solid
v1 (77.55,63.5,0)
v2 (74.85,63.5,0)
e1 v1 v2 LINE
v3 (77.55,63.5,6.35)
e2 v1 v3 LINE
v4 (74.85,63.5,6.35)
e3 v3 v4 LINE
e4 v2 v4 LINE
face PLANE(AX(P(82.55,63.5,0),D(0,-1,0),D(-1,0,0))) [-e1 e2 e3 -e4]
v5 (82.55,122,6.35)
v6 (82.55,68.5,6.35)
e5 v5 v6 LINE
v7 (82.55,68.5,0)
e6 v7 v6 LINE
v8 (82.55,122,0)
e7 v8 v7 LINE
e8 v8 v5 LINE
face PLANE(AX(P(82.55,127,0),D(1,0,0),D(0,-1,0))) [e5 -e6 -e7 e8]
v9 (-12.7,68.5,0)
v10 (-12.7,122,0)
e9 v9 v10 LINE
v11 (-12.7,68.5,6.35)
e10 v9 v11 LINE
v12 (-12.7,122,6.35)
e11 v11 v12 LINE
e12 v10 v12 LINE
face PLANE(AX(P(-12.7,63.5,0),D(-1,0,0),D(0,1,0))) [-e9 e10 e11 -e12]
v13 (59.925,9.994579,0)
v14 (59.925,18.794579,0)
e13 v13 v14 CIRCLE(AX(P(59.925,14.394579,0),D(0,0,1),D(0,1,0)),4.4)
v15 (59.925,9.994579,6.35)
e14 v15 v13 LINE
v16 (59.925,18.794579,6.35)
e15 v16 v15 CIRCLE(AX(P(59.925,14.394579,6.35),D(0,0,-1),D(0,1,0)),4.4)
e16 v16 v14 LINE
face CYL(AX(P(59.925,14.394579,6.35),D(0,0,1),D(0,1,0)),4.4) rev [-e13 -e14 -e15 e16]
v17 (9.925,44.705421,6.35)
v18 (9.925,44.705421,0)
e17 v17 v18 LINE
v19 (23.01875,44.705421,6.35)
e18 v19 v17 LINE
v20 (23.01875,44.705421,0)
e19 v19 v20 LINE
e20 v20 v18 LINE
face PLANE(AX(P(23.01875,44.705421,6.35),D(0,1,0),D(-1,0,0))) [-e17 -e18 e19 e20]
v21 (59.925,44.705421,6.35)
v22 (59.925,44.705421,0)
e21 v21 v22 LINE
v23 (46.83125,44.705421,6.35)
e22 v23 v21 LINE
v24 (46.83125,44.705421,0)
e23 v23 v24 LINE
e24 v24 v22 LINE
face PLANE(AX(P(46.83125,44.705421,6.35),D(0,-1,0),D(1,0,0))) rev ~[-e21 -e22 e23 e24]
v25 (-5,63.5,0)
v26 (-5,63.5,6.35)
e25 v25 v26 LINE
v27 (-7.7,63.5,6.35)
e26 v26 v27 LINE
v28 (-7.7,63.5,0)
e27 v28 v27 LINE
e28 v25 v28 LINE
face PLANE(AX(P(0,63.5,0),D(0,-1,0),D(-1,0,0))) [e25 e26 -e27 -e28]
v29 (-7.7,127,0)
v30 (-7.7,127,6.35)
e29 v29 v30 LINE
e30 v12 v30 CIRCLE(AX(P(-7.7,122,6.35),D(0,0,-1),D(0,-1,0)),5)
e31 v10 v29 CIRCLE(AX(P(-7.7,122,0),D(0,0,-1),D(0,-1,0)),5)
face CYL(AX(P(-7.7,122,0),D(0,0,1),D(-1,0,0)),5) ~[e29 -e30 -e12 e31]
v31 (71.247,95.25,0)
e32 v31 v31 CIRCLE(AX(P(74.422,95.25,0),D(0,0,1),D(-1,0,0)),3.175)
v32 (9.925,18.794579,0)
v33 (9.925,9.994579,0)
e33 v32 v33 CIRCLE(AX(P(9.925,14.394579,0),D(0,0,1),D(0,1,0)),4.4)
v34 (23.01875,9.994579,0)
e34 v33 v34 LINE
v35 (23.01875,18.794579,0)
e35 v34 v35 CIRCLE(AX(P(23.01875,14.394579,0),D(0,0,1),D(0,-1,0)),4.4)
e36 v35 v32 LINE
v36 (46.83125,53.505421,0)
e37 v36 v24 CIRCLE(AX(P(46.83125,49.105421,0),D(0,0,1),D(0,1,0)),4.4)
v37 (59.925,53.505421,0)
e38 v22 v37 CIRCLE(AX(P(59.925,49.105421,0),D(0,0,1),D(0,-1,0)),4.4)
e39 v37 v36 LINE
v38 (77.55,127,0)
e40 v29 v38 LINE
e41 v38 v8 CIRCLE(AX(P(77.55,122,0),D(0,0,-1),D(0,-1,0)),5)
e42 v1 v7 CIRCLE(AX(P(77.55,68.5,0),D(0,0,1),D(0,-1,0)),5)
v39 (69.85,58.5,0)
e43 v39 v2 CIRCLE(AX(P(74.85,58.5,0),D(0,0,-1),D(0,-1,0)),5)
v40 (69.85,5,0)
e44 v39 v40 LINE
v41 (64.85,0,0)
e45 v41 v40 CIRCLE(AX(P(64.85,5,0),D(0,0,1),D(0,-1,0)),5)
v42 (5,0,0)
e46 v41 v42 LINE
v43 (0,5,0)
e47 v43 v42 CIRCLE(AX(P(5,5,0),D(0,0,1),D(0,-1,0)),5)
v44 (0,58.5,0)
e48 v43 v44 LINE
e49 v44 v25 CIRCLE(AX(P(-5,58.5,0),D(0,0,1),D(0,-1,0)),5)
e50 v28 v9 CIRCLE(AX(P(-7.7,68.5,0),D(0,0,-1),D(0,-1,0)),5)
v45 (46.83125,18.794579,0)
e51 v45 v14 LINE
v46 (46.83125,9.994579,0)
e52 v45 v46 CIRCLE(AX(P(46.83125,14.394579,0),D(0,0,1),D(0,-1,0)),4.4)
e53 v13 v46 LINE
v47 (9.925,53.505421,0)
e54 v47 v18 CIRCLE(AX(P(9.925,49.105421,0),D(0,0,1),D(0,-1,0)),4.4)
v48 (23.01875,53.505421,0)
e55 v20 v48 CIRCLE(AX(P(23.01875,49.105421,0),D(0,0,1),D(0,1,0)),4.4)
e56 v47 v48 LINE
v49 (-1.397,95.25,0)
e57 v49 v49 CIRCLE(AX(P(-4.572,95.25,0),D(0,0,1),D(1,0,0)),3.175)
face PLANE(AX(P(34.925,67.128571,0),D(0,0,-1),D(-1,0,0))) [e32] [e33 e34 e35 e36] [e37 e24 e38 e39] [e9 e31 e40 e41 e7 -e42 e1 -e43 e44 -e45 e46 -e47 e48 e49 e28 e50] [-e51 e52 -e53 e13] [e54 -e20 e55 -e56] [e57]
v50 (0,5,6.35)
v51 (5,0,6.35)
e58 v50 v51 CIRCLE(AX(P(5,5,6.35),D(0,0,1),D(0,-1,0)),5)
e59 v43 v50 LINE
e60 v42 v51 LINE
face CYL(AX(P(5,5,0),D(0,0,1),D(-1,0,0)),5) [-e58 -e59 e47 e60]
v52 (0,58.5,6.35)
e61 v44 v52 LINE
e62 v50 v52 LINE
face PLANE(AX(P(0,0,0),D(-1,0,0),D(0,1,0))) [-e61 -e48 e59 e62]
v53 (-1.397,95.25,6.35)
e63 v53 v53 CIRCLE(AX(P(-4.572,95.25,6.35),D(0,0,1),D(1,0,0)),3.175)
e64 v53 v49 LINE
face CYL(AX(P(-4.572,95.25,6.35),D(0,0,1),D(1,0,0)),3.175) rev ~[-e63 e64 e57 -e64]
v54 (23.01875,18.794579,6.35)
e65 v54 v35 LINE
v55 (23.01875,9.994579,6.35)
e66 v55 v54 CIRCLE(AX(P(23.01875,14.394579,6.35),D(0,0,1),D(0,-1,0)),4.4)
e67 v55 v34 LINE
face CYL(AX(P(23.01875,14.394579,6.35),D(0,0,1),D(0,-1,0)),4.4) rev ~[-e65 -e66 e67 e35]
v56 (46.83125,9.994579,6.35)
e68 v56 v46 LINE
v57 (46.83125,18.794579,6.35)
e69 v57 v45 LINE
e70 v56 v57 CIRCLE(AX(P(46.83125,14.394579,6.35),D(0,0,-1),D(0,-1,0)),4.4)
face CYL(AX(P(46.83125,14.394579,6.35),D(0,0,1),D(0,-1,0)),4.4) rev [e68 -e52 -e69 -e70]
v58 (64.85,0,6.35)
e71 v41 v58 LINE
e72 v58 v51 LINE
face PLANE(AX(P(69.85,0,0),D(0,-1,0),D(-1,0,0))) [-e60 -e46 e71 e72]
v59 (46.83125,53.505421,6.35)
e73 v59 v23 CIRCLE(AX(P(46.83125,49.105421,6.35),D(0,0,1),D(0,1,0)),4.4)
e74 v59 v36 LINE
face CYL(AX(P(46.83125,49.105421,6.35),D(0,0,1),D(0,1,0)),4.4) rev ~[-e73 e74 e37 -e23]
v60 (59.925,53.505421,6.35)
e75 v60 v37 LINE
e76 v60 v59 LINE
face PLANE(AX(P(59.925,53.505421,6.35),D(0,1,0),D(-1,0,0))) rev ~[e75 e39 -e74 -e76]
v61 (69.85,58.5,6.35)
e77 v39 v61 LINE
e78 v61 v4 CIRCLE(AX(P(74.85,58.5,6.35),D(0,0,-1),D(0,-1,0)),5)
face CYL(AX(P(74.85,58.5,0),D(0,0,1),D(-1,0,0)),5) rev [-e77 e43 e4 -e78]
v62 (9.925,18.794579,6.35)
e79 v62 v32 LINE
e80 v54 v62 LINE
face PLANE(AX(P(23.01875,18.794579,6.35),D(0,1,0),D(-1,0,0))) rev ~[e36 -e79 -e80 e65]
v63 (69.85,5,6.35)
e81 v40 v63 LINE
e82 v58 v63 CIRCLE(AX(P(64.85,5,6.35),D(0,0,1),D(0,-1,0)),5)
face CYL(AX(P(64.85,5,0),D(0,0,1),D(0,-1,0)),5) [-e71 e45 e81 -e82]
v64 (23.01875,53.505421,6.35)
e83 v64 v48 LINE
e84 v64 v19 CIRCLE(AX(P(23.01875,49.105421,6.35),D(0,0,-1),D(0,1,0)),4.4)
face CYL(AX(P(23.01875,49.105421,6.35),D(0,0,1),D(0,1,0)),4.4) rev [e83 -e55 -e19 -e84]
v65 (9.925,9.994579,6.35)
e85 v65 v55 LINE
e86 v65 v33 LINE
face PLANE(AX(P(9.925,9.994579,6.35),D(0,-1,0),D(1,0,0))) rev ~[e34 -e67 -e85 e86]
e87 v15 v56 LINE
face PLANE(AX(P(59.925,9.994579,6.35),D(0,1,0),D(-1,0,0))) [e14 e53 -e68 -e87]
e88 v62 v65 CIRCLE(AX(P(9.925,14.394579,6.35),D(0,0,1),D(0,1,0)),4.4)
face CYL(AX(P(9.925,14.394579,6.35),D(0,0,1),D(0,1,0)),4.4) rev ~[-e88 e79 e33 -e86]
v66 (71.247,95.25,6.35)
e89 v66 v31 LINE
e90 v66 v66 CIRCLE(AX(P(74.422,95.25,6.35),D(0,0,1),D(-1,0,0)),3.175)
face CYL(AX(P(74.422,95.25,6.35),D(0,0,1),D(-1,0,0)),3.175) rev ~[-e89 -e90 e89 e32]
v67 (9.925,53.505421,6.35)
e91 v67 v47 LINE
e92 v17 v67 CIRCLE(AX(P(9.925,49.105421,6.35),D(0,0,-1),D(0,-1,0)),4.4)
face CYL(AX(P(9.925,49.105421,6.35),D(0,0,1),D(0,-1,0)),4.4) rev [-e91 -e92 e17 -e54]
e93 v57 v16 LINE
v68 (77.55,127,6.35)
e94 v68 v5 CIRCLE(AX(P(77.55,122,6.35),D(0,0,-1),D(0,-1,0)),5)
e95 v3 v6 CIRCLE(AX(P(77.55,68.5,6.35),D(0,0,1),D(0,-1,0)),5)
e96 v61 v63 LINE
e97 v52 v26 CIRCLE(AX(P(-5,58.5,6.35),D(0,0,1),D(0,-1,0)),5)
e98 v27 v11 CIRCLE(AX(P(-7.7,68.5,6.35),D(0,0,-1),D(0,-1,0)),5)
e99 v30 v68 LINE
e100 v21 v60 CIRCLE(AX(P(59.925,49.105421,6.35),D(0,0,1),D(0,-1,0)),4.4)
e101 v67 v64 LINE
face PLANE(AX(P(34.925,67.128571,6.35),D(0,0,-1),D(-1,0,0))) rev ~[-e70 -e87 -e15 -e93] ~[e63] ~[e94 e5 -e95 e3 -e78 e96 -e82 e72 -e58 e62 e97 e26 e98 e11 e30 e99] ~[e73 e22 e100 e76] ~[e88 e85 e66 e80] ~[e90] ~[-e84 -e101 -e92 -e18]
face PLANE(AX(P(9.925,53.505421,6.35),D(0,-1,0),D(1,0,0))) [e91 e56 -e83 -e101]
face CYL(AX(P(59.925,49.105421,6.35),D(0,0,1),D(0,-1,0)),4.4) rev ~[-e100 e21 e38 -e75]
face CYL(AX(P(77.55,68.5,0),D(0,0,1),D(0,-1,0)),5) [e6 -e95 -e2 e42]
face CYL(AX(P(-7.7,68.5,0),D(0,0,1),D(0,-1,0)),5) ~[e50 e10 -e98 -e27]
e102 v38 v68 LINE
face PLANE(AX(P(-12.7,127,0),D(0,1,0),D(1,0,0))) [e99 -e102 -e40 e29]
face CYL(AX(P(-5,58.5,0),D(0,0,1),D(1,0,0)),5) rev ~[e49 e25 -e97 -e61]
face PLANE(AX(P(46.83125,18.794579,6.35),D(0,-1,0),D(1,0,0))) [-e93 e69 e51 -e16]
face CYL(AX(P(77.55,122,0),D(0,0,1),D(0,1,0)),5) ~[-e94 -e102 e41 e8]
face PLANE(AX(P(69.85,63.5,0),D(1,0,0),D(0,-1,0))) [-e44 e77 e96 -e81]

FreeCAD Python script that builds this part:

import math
import FreeCAD as App
import Part
import Sketcher

V = App.Vector
Q = App.Units.Quantity


def edges_at(feature, points):
    """Names of the edges that pass closest to the given points."""
    edges = feature.Shape.Edges
    near = lambda p: min(range(len(edges)), key=lambda i: edges[i].distToShape(Part.Vertex(*p))[0])
    return sorted({f"Edge{near(p) + 1}" for p in points})

doc = App.newDocument("Part")
body = doc.addObject("PartDesign::Body", "Body")

# Sketch on XY plane
sketch1 = body.newObject("Sketcher::SketchObject", "Sketch")
sketch1.AttachmentSupport = (doc.getObject("XY_Plane"), [""])
sketch1.MapMode = "FlatFace"
sketch1.addGeometry(Part.LineSegment(V(0, 64, 0), V(0, 0, 0)), False)
sketch1.addGeometry(Part.LineSegment(V(0, 0, 0), V(70, 0, 0)), False)
sketch1.addGeometry(Part.LineSegment(V(70, 0, 0), V(70, 64, 0)), False)
sketch1.addGeometry(Part.LineSegment(V(70, 64, 0), V(83, 64, 0)), False)
sketch1.addGeometry(Part.LineSegment(V(83, 64, 0), V(83, 127, 0)), False)
sketch1.addGeometry(Part.LineSegment(V(83, 127, 0), V(-13, 127, 0)), False)
sketch1.addGeometry(Part.LineSegment(V(-13, 127, 0), V(-13, 64, 0)), False)
sketch1.addGeometry(Part.LineSegment(V(-13, 64, 0), V(0, 64, 0)), False)
sketch1.addConstraint(Sketcher.Constraint("Coincident", 0, 2, 1, 1))
sketch1.addConstraint(Sketcher.Constraint("Coincident", 1, 2, 2, 1))
sketch1.addConstraint(Sketcher.Constraint("Coincident", 2, 2, 3, 1))
sketch1.addConstraint(Sketcher.Constraint("Coincident", 3, 2, 4, 1))
sketch1.addConstraint(Sketcher.Constraint("Coincident", 4, 2, 5, 1))
sketch1.addConstraint(Sketcher.Constraint("Coincident", 5, 2, 6, 1))
sketch1.addConstraint(Sketcher.Constraint("Coincident", 6, 2, 7, 1))
sketch1.addConstraint(Sketcher.Constraint("Coincident", 7, 2, 0, 1))
sketch1.addConstraint(Sketcher.Constraint("Vertical", 0))
sketch1.addConstraint(Sketcher.Constraint("Horizontal", 1))
sketch1.addConstraint(Sketcher.Constraint("Vertical", 2))
sketch1.addConstraint(Sketcher.Constraint("Horizontal", 3))
sketch1.addConstraint(Sketcher.Constraint("Vertical", 4))
sketch1.addConstraint(Sketcher.Constraint("Horizontal", 5))
sketch1.addConstraint(Sketcher.Constraint("Vertical", 6))
sketch1.addConstraint(Sketcher.Constraint("Horizontal", 7))
sketch1.addConstraint(Sketcher.Constraint("Coincident", 0, 2, -1, 1))
sketch1.addConstraint(Sketcher.Constraint("Horizontal", 3, 2, 6, 2))
sketch1.addConstraint(Sketcher.Constraint("Equal", 3, 7))
sketch1.addConstraint(Sketcher.Constraint("Equal", 2, 4))
sketch1.addConstraint(Sketcher.Constraint("DistanceX", 3, 1, 3, 2, Q("0.5 in")))
sketch1.addConstraint(Sketcher.Constraint("DistanceY", 0, 2, 0, 1, Q("2.5 in")))
sketch1.addConstraint(Sketcher.Constraint("DistanceX", 1, 1, 1, 2, Q("2.75 in")))
pad1 = body.newObject("PartDesign::Pad", "Pad")
pad1.Profile = sketch1
pad1.Length = Q("0.25 in")

# Sketch on XY plane
sketch2 = body.newObject("Sketcher::SketchObject", "Sketch001")
sketch2.AttachmentSupport = (doc.getObject("XY_Plane"), [""])
sketch2.MapMode = "FlatFace"
sketch2.AttachmentOffset = App.Placement(V(0, 0, 0.25 * 25.4), App.Rotation())
sketch2.addGeometry(Part.Circle(V(-4.6, 95.2, 0), V(0, 0, 1), 3.2), False)
sketch2.addConstraint(Sketcher.Constraint("Diameter", 0, Q("0.25 in")))
sketch2.addConstraint(Sketcher.Constraint("DistanceX", 0, 3, -1, 1, Q("0.18 in")))
sketch2.addConstraint(Sketcher.Constraint("DistanceY", -1, 1, 0, 3, Q("3.75 in")))
pocket1 = body.newObject("PartDesign::Pocket", "Pocket")
pocket1.Profile = sketch2
pocket1.Type = "UpToFirst"

# Sketch on XY plane
sketch3 = body.newObject("Sketcher::SketchObject", "Sketch002")
sketch3.AttachmentSupport = (doc.getObject("XY_Plane"), [""])
sketch3.MapMode = "FlatFace"
sketch3.AttachmentOffset = App.Placement(V(0, 0, 0.25 * 25.4), App.Rotation())
sketch3.addGeometry(Part.Circle(V(74.4, 95.2, 0), V(0, 0, 1), 3.2), False)
sketch3.addConstraint(Sketcher.Constraint("Diameter", 0, Q("0.25 in")))
sketch3.addConstraint(Sketcher.Constraint("DistanceX", -1, 1, 0, 3, Q("2.93 in")))
sketch3.addConstraint(Sketcher.Constraint("DistanceY", -1, 1, 0, 3, Q("3.75 in")))
pocket2 = body.newObject("PartDesign::Pocket", "Pocket001")
pocket2.Profile = sketch3
pocket2.Type = "UpToFirst"

# Sketch on XY plane
sketch4 = body.newObject("Sketcher::SketchObject", "Sketch003")
sketch4.AttachmentSupport = (doc.getObject("XY_Plane"), [""])
sketch4.MapMode = "FlatFace"
sketch4.AttachmentOffset = App.Placement(V(0, 0, 0.25 * 25.4), App.Rotation())
sketch4.addGeometry(Part.LineSegment(V(23, 53.5, 0), V(9.9, 53.5, 0)), False)
sketch4.addGeometry(Part.ArcOfCircle(Part.Circle(V(9.9, 49.1, 0), V(0, 0, 1), 4.4), math.radians(90), math.radians(270)), False)
sketch4.addGeometry(Part.LineSegment(V(9.9, 44.7, 0), V(23, 44.7, 0)), False)
sketch4.addGeometry(Part.ArcOfCircle(Part.Circle(V(23, 49.1, 0), V(0, 0, 1), 4.4), math.radians(-90), math.radians(90)), False)
sketch4.addConstraint(Sketcher.Constraint("Tangent", 0, 2, 1, 1))
sketch4.addConstraint(Sketcher.Constraint("Tangent", 1, 2, 2, 1))
sketch4.addConstraint(Sketcher.Constraint("Tangent", 2, 2, 3, 1))
sketch4.addConstraint(Sketcher.Constraint("Tangent", 3, 2, 0, 1))
sketch4.addConstraint(Sketcher.Constraint("Horizontal", 0))
sketch4.addConstraint(Sketcher.Constraint("Horizontal", 2))
sketch4.addConstraint(Sketcher.Constraint("Radius", 1, 4.4))
sketch4.addConstraint(Sketcher.Constraint("DistanceX", -1, 1, 3, 3, Q("0.90625 in")))
sketch4.addConstraint(Sketcher.Constraint("DistanceX", 0, 2, 0, 1, 13.09375))
sketch4.addConstraint(Sketcher.Constraint("DistanceY", -1, 1, 1, 3, 49.105421))
pocket3 = body.newObject("PartDesign::Pocket", "Pocket002")
pocket3.Profile = sketch4
pocket3.Type = "UpToFirst"

# Sketch on XY plane
sketch5 = body.newObject("Sketcher::SketchObject", "Sketch004")
sketch5.AttachmentSupport = (doc.getObject("XY_Plane"), [""])
sketch5.MapMode = "FlatFace"
sketch5.AttachmentOffset = App.Placement(V(0, 0, 0.25 * 25.4), App.Rotation())
sketch5.addGeometry(Part.LineSegment(V(59.9, 53.5, 0), V(46.8, 53.5, 0)), False)
sketch5.addGeometry(Part.ArcOfCircle(Part.Circle(V(46.8, 49.1, 0), V(0, 0, 1), 4.4), math.radians(90), math.radians(270)), False)
sketch5.addGeometry(Part.LineSegment(V(46.8, 44.7, 0), V(59.9, 44.7, 0)), False)
sketch5.addGeometry(Part.ArcOfCircle(Part.Circle(V(59.9, 49.1, 0), V(0, 0, 1), 4.4), math.radians(-90), math.radians(90)), False)
sketch5.addConstraint(Sketcher.Constraint("Tangent", 0, 2, 1, 1))
sketch5.addConstraint(Sketcher.Constraint("Tangent", 1, 2, 2, 1))
sketch5.addConstraint(Sketcher.Constraint("Tangent", 2, 2, 3, 1))
sketch5.addConstraint(Sketcher.Constraint("Tangent", 3, 2, 0, 1))
sketch5.addConstraint(Sketcher.Constraint("Horizontal", 0))
sketch5.addConstraint(Sketcher.Constraint("Horizontal", 2))
sketch5.addConstraint(Sketcher.Constraint("Radius", 1, 4.4))
sketch5.addConstraint(Sketcher.Constraint("DistanceX", -1, 1, 1, 3, Q("1.84375 in")))
sketch5.addConstraint(Sketcher.Constraint("DistanceX", 0, 2, 0, 1, 13.09375))
sketch5.addConstraint(Sketcher.Constraint("DistanceY", -1, 1, 1, 3, 49.105421))
pocket4 = body.newObject("PartDesign::Pocket", "Pocket003")
pocket4.Profile = sketch5
pocket4.Type = "UpToFirst"

# Sketch on XY plane
sketch6 = body.newObject("Sketcher::SketchObject", "Sketch005")
sketch6.AttachmentSupport = (doc.getObject("XY_Plane"), [""])
sketch6.MapMode = "FlatFace"
sketch6.AttachmentOffset = App.Placement(V(0, 0, 0.25 * 25.4), App.Rotation())
sketch6.addGeometry(Part.LineSegment(V(46.8, 10, 0), V(59.9, 10, 0)), False)
sketch6.addGeometry(Part.ArcOfCircle(Part.Circle(V(59.9, 14.4, 0), V(0, 0, 1), 4.4), math.radians(-90), math.radians(90)), False)
sketch6.addGeometry(Part.LineSegment(V(59.9, 18.8, 0), V(46.8, 18.8, 0)), False)
sketch6.addGeometry(Part.ArcOfCircle(Part.Circle(V(46.8, 14.4, 0), V(0, 0, 1), 4.4), math.radians(90), math.radians(270)), False)
sketch6.addConstraint(Sketcher.Constraint("Tangent", 0, 2, 1, 1))
sketch6.addConstraint(Sketcher.Constraint("Tangent", 1, 2, 2, 1))
sketch6.addConstraint(Sketcher.Constraint("Tangent", 2, 2, 3, 1))
sketch6.addConstraint(Sketcher.Constraint("Tangent", 3, 2, 0, 1))
sketch6.addConstraint(Sketcher.Constraint("Horizontal", 0))
sketch6.addConstraint(Sketcher.Constraint("Horizontal", 2))
sketch6.addConstraint(Sketcher.Constraint("Radius", 1, 4.4))
sketch6.addConstraint(Sketcher.Constraint("DistanceX", -1, 1, 3, 3, Q("1.84375 in")))
sketch6.addConstraint(Sketcher.Constraint("DistanceX", 0, 1, 0, 2, 13.09375))
sketch6.addConstraint(Sketcher.Constraint("DistanceY", -1, 1, 1, 3, 14.394579))
pocket5 = body.newObject("PartDesign::Pocket", "Pocket004")
pocket5.Profile = sketch6
pocket5.Type = "UpToFirst"

# Sketch on XY plane
sketch7 = body.newObject("Sketcher::SketchObject", "Sketch006")
sketch7.AttachmentSupport = (doc.getObject("XY_Plane"), [""])
sketch7.MapMode = "FlatFace"
sketch7.AttachmentOffset = App.Placement(V(0, 0, 0.25 * 25.4), App.Rotation())
sketch7.addGeometry(Part.LineSegment(V(9.9, 10, 0), V(23, 10, 0)), False)
sketch7.addGeometry(Part.ArcOfCircle(Part.Circle(V(23, 14.4, 0), V(0, 0, 1), 4.4), math.radians(-90), math.radians(90)), False)
sketch7.addGeometry(Part.LineSegment(V(23, 18.8, 0), V(9.9, 18.8, 0)), False)
sketch7.addGeometry(Part.ArcOfCircle(Part.Circle(V(9.9, 14.4, 0), V(0, 0, 1), 4.4), math.radians(90), math.radians(270)), False)
sketch7.addConstraint(Sketcher.Constraint("Tangent", 0, 2, 1, 1))
sketch7.addConstraint(Sketcher.Constraint("Tangent", 1, 2, 2, 1))
sketch7.addConstraint(Sketcher.Constraint("Tangent", 2, 2, 3, 1))
sketch7.addConstraint(Sketcher.Constraint("Tangent", 3, 2, 0, 1))
sketch7.addConstraint(Sketcher.Constraint("Horizontal", 0))
sketch7.addConstraint(Sketcher.Constraint("Horizontal", 2))
sketch7.addConstraint(Sketcher.Constraint("Radius", 1, 4.4))
sketch7.addConstraint(Sketcher.Constraint("DistanceX", -1, 1, 1, 3, Q("0.90625 in")))
sketch7.addConstraint(Sketcher.Constraint("DistanceX", 0, 1, 0, 2, 13.09375))
sketch7.addConstraint(Sketcher.Constraint("DistanceY", -1, 1, 1, 3, 14.394579))
pocket6 = body.newObject("PartDesign::Pocket", "Pocket005")
pocket6.Profile = sketch7
pocket6.Type = "UpToFirst"
doc.recompute()

fillet = body.newObject("PartDesign::Fillet", "Fillet")
fillet.Base = (pocket6, edges_at(pocket6, [
    (0, 0, 3.175),
    (0, 63.5, 3.175),
    (-12.7, 63.5, 3.175),
    (-12.7, 127, 3.175),
    (82.55, 127, 3.175),
    (82.55, 63.5, 3.175),
    (69.85, 63.5, 3.175),
    (69.85, 0, 3.175),
]))
fillet.Radius = 5

doc.recompute()
